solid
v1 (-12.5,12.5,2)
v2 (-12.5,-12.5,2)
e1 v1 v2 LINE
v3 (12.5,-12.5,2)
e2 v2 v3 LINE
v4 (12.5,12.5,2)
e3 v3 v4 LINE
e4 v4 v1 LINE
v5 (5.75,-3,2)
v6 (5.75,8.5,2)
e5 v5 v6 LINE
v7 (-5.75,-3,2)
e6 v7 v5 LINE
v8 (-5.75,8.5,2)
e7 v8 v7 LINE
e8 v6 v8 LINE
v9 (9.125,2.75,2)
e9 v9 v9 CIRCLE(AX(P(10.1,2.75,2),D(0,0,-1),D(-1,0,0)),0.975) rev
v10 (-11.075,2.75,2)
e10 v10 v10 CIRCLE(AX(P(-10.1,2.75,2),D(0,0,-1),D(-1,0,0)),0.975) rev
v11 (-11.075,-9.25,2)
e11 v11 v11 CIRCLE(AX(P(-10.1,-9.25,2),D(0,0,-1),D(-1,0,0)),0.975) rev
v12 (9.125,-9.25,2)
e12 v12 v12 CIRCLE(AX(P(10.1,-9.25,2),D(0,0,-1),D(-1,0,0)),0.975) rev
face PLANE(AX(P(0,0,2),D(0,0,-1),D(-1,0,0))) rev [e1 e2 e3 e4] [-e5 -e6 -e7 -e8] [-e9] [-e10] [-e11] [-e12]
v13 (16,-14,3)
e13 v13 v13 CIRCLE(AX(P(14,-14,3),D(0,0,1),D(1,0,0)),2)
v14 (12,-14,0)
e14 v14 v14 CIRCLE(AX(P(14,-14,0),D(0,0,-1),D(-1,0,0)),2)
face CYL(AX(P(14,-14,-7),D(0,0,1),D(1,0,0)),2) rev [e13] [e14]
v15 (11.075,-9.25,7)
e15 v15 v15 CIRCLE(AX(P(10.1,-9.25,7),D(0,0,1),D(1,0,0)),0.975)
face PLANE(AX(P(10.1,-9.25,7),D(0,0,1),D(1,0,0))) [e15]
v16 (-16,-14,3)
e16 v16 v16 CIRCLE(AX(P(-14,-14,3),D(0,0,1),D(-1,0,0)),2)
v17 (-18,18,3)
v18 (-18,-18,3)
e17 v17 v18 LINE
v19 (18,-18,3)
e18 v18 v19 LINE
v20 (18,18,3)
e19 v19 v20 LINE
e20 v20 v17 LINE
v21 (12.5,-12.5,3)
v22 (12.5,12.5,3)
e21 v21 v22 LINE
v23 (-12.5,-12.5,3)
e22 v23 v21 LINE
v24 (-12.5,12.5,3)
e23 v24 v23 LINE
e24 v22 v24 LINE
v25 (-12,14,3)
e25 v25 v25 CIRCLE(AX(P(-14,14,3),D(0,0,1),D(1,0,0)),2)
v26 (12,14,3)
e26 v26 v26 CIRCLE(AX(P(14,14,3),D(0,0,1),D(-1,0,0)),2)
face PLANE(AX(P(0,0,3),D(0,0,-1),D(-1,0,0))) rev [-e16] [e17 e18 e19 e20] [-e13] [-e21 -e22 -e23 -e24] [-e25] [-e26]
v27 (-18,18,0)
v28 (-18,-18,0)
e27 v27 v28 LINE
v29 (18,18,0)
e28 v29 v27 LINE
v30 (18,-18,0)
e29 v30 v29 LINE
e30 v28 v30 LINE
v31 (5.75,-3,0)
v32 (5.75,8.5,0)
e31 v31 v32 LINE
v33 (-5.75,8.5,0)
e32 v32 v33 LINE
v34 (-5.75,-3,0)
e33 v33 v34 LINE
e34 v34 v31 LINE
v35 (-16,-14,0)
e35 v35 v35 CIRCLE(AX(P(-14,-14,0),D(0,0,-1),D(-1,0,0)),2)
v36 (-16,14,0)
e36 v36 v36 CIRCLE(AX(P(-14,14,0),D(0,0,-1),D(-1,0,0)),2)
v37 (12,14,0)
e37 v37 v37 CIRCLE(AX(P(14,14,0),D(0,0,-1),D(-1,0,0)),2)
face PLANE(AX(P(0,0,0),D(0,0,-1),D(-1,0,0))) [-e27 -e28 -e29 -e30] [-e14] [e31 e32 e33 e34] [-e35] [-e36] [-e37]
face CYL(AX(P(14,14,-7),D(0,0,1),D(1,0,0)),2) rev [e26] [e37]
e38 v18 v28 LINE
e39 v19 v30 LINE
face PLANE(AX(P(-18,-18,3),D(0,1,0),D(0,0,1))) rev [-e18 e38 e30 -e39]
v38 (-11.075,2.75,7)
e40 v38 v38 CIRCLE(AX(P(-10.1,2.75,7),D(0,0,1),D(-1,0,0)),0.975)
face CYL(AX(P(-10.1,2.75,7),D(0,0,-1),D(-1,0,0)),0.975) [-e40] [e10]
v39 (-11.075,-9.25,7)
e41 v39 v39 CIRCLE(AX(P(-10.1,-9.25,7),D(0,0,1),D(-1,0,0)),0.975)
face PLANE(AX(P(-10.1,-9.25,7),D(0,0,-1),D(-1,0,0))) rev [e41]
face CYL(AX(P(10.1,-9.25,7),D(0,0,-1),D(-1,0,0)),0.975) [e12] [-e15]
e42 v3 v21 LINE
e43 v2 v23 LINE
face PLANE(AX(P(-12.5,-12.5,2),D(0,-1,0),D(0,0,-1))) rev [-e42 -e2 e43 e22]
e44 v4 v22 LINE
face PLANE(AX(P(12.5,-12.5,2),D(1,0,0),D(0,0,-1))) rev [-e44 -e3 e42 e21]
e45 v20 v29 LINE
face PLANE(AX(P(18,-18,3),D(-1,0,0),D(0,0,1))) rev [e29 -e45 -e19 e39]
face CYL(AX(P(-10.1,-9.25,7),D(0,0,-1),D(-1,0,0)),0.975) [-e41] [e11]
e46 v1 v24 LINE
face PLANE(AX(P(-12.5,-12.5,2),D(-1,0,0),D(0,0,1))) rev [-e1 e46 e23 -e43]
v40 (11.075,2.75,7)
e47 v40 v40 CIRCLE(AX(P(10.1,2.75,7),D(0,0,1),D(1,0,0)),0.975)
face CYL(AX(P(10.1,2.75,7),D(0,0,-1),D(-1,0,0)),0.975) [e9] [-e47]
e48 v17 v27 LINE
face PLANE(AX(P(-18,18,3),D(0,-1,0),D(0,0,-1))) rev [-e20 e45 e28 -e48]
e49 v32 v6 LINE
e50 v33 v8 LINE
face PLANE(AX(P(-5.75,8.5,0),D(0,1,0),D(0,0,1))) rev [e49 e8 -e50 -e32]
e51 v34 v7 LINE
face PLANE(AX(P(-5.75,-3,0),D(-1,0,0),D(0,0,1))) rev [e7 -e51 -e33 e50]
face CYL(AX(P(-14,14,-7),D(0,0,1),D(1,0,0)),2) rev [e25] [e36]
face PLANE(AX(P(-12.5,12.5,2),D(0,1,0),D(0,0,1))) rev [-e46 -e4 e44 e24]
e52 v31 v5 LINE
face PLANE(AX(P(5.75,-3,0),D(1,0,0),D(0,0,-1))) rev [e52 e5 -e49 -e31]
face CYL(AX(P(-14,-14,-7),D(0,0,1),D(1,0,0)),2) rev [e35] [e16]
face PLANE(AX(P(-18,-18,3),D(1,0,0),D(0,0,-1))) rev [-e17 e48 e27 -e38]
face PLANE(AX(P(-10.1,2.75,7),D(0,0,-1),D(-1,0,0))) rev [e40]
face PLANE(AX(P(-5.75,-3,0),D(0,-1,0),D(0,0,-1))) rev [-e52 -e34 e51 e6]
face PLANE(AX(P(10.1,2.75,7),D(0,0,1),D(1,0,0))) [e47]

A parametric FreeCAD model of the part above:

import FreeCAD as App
import Part
import Sketcher

V = App.Vector

doc = App.newDocument("Part")
body = doc.addObject("PartDesign::Body", "Body")

sketch1 = body.newObject("Sketcher::SketchObject", "Sketch")
sketch1.AttachmentSupport = (doc.getObject("XY_Plane"), [""])
sketch1.MapMode = "FlatFace"
sketch1.addGeometry([
    Part.LineSegment(V(-18, 18, 0), V(-18, -18, 0)),
    Part.LineSegment(V(-18, -18, 0), V(18, -18, 0)),
    Part.LineSegment(V(18, -18, 0), V(18, 18, 0)),
    Part.LineSegment(V(18, 18, 0), V(-18, 18, 0)),
], False)
sketch1.addConstraint([
    Sketcher.Constraint("Coincident", 0, 2, 1, 1),
    Sketcher.Constraint("Coincident", 1, 2, 2, 1),
    Sketcher.Constraint("Coincident", 2, 2, 3, 1),
    Sketcher.Constraint("Coincident", 3, 2, 0, 1),
    Sketcher.Constraint("Vertical", 0),
    Sketcher.Constraint("Horizontal", 1),
    Sketcher.Constraint("Vertical", 2),
    Sketcher.Constraint("Horizontal", 3),
    Sketcher.Constraint("Symmetric", 0, 2, 2, 2, -1, 1),
    Sketcher.Constraint("Equal", 3, 0),
    Sketcher.Constraint("DistanceX", 1, 1, 1, 2, 36.0),
])
pad1 = body.newObject("PartDesign::Pad", "Pad")
pad1.Profile = sketch1
pad1.Length = 3

sketch2 = body.newObject("Sketcher::SketchObject", "Sketch001")
sketch2.AttachmentSupport = (doc.getObject("XY_Plane"), [""])
sketch2.MapMode = "FlatFace"
sketch2.AttachmentOffset = App.Placement(V(0, 0, 3), App.Rotation())
sketch2.addGeometry([
    Part.Circle(V(-14, 14, 0), V(0, 0, 1), 2),
    Part.Circle(V(-14, -14, 0), V(0, 0, 1), 2),
    Part.Circle(V(14, -14, 0), V(0, 0, 1), 2),
    Part.Circle(V(14, 14, 0), V(0, 0, 1), 2),
], False)
sketch2.addConstraint([
    Sketcher.Constraint("Equal", 0, 1),
    Sketcher.Constraint("Equal", 1, 2),
    Sketcher.Constraint("Equal", 2, 3),
    Sketcher.Constraint("Symmetric", 0, 3, 2, 3, -1, 1),
    Sketcher.Constraint("Symmetric", 1, 3, 3, 3, -1, 1),
    Sketcher.Constraint("Symmetric", 1, 3, 2, 3, -2),
    Sketcher.Constraint("Diameter", 0, 4.0),
    Sketcher.Constraint("DistanceX", 0, 3, -1, 1, 14.0),
    Sketcher.Constraint("DistanceY", -1, 1, 0, 3, 14.0),
])
pocket1 = body.newObject("PartDesign::Pocket", "Pocket")
pocket1.Profile = sketch2
pocket1.Length = 10

sketch3 = body.newObject("Sketcher::SketchObject", "Sketch002")
sketch3.AttachmentSupport = (doc.getObject("XY_Plane"), [""])
sketch3.MapMode = "FlatFace"
sketch3.AttachmentOffset = App.Placement(V(0, 0, 3), App.Rotation())
sketch3.addGeometry([
    Part.LineSegment(V(-12, 12, 0), V(-12, -12, 0)),
    Part.LineSegment(V(-12, -12, 0), V(12, -12, 0)),
    Part.LineSegment(V(12, -12, 0), V(12, 12, 0)),
    Part.LineSegment(V(12, 12, 0), V(-12, 12, 0)),
], False)
sketch3.addConstraint([
    Sketcher.Constraint("Coincident", 0, 2, 1, 1),
    Sketcher.Constraint("Coincident", 1, 2, 2, 1),
    Sketcher.Constraint("Coincident", 2, 2, 3, 1),
    Sketcher.Constraint("Coincident", 3, 2, 0, 1),
    Sketcher.Constraint("Vertical", 0),
    Sketcher.Constraint("Horizontal", 1),
    Sketcher.Constraint("Vertical", 2),
    Sketcher.Constraint("Horizontal", 3),
    Sketcher.Constraint("Symmetric", 0, 2, 2, 2, -1, 1),
    Sketcher.Constraint("Equal", 3, 0),
    Sketcher.Constraint("DistanceX", 1, 1, 1, 2, 25.0),
])
pocket2 = body.newObject("PartDesign::Pocket", "Pocket001")
pocket2.Profile = sketch3
pocket2.Length = 1

sketch4 = body.newObject("Sketcher::SketchObject", "Sketch003")
sketch4.AttachmentSupport = (doc.getObject("XY_Plane"), [""])
sketch4.MapMode = "FlatFace"
sketch4.AttachmentOffset = App.Placement(V(0, 0, 2), App.Rotation())
sketch4.addGeometry([
    Part.LineSegment(V(-6, 8, 0), V(-6, -3, 0)),
    Part.LineSegment(V(-6, -3, 0), V(6, -3, 0)),
    Part.LineSegment(V(6, -3, 0), V(6, 8, 0)),
    Part.LineSegment(V(6, 8, 0), V(-6, 8, 0)),
], False)
sketch4.addConstraint([
    Sketcher.Constraint("Coincident", 0, 2, 1, 1),
    Sketcher.Constraint("Coincident", 1, 2, 2, 1),
    Sketcher.Constraint("Coincident", 2, 2, 3, 1),
    Sketcher.Constraint("Coincident", 3, 2, 0, 1),
    Sketcher.Constraint("Vertical", 0),
    Sketcher.Constraint("Horizontal", 1),
    Sketcher.Constraint("Vertical", 2),
    Sketcher.Constraint("Horizontal", 3),
    Sketcher.Constraint("Equal", 3, 0),
    Sketcher.Constraint("DistanceX", 1, 1, 1, 2, 11.5),
    Sketcher.Constraint("DistanceY", 0, 2, -1, 1, 3.0),
    Sketcher.Constraint("DistanceX", 0, 2, -1, 1, 5.75),
])
pocket3 = body.newObject("PartDesign::Pocket", "Pocket002")
pocket3.Profile = sketch4
pocket3.Type = "ThroughAll"

sketch5 = body.newObject("Sketcher::SketchObject", "Sketch004")
sketch5.AttachmentSupport = (doc.getObject("XY_Plane"), [""])
sketch5.MapMode = "FlatFace"
sketch5.AttachmentOffset = App.Placement(V(0, 0, 2), App.Rotation())
sketch5.addGeometry([
    Part.Circle(V(10.1, 2.8, 0), V(0, 0, 1), 1),
    Part.Circle(V(10.1, -9.2, 0), V(0, 0, 1), 1),
    Part.Circle(V(-10.1, -9.2, 0), V(0, 0, 1), 1),
    Part.Circle(V(-10.1, 2.8, 0), V(0, 0, 1), 1),
], False)
sketch5.addConstraint([
    Sketcher.Constraint("Equal", 0, 1),
    Sketcher.Constraint("Equal", 1, 2),
    Sketcher.Constraint("Equal", 2, 3),
    Sketcher.Constraint("Symmetric", 1, 3, 2, 3, -2),
    Sketcher.Constraint("Symmetric", 0, 3, 3, 3, -2),
    Sketcher.Constraint("Vertical", 0, 3, 1, 3),
    Sketcher.Constraint("Diameter", 0, 1.95),
    Sketcher.Constraint("DistanceY", 1, 3, 0, 3, 12.0),
    Sketcher.Constraint("DistanceX", -1, 1, 0, 3, 10.1),
    Sketcher.Constraint("DistanceY", -1, 1, 0, 3, 2.75),
])
pad2 = body.newObject("PartDesign::Pad", "Pad001")
pad2.Profile = sketch5
pad2.Length = 5

doc.recompute()
